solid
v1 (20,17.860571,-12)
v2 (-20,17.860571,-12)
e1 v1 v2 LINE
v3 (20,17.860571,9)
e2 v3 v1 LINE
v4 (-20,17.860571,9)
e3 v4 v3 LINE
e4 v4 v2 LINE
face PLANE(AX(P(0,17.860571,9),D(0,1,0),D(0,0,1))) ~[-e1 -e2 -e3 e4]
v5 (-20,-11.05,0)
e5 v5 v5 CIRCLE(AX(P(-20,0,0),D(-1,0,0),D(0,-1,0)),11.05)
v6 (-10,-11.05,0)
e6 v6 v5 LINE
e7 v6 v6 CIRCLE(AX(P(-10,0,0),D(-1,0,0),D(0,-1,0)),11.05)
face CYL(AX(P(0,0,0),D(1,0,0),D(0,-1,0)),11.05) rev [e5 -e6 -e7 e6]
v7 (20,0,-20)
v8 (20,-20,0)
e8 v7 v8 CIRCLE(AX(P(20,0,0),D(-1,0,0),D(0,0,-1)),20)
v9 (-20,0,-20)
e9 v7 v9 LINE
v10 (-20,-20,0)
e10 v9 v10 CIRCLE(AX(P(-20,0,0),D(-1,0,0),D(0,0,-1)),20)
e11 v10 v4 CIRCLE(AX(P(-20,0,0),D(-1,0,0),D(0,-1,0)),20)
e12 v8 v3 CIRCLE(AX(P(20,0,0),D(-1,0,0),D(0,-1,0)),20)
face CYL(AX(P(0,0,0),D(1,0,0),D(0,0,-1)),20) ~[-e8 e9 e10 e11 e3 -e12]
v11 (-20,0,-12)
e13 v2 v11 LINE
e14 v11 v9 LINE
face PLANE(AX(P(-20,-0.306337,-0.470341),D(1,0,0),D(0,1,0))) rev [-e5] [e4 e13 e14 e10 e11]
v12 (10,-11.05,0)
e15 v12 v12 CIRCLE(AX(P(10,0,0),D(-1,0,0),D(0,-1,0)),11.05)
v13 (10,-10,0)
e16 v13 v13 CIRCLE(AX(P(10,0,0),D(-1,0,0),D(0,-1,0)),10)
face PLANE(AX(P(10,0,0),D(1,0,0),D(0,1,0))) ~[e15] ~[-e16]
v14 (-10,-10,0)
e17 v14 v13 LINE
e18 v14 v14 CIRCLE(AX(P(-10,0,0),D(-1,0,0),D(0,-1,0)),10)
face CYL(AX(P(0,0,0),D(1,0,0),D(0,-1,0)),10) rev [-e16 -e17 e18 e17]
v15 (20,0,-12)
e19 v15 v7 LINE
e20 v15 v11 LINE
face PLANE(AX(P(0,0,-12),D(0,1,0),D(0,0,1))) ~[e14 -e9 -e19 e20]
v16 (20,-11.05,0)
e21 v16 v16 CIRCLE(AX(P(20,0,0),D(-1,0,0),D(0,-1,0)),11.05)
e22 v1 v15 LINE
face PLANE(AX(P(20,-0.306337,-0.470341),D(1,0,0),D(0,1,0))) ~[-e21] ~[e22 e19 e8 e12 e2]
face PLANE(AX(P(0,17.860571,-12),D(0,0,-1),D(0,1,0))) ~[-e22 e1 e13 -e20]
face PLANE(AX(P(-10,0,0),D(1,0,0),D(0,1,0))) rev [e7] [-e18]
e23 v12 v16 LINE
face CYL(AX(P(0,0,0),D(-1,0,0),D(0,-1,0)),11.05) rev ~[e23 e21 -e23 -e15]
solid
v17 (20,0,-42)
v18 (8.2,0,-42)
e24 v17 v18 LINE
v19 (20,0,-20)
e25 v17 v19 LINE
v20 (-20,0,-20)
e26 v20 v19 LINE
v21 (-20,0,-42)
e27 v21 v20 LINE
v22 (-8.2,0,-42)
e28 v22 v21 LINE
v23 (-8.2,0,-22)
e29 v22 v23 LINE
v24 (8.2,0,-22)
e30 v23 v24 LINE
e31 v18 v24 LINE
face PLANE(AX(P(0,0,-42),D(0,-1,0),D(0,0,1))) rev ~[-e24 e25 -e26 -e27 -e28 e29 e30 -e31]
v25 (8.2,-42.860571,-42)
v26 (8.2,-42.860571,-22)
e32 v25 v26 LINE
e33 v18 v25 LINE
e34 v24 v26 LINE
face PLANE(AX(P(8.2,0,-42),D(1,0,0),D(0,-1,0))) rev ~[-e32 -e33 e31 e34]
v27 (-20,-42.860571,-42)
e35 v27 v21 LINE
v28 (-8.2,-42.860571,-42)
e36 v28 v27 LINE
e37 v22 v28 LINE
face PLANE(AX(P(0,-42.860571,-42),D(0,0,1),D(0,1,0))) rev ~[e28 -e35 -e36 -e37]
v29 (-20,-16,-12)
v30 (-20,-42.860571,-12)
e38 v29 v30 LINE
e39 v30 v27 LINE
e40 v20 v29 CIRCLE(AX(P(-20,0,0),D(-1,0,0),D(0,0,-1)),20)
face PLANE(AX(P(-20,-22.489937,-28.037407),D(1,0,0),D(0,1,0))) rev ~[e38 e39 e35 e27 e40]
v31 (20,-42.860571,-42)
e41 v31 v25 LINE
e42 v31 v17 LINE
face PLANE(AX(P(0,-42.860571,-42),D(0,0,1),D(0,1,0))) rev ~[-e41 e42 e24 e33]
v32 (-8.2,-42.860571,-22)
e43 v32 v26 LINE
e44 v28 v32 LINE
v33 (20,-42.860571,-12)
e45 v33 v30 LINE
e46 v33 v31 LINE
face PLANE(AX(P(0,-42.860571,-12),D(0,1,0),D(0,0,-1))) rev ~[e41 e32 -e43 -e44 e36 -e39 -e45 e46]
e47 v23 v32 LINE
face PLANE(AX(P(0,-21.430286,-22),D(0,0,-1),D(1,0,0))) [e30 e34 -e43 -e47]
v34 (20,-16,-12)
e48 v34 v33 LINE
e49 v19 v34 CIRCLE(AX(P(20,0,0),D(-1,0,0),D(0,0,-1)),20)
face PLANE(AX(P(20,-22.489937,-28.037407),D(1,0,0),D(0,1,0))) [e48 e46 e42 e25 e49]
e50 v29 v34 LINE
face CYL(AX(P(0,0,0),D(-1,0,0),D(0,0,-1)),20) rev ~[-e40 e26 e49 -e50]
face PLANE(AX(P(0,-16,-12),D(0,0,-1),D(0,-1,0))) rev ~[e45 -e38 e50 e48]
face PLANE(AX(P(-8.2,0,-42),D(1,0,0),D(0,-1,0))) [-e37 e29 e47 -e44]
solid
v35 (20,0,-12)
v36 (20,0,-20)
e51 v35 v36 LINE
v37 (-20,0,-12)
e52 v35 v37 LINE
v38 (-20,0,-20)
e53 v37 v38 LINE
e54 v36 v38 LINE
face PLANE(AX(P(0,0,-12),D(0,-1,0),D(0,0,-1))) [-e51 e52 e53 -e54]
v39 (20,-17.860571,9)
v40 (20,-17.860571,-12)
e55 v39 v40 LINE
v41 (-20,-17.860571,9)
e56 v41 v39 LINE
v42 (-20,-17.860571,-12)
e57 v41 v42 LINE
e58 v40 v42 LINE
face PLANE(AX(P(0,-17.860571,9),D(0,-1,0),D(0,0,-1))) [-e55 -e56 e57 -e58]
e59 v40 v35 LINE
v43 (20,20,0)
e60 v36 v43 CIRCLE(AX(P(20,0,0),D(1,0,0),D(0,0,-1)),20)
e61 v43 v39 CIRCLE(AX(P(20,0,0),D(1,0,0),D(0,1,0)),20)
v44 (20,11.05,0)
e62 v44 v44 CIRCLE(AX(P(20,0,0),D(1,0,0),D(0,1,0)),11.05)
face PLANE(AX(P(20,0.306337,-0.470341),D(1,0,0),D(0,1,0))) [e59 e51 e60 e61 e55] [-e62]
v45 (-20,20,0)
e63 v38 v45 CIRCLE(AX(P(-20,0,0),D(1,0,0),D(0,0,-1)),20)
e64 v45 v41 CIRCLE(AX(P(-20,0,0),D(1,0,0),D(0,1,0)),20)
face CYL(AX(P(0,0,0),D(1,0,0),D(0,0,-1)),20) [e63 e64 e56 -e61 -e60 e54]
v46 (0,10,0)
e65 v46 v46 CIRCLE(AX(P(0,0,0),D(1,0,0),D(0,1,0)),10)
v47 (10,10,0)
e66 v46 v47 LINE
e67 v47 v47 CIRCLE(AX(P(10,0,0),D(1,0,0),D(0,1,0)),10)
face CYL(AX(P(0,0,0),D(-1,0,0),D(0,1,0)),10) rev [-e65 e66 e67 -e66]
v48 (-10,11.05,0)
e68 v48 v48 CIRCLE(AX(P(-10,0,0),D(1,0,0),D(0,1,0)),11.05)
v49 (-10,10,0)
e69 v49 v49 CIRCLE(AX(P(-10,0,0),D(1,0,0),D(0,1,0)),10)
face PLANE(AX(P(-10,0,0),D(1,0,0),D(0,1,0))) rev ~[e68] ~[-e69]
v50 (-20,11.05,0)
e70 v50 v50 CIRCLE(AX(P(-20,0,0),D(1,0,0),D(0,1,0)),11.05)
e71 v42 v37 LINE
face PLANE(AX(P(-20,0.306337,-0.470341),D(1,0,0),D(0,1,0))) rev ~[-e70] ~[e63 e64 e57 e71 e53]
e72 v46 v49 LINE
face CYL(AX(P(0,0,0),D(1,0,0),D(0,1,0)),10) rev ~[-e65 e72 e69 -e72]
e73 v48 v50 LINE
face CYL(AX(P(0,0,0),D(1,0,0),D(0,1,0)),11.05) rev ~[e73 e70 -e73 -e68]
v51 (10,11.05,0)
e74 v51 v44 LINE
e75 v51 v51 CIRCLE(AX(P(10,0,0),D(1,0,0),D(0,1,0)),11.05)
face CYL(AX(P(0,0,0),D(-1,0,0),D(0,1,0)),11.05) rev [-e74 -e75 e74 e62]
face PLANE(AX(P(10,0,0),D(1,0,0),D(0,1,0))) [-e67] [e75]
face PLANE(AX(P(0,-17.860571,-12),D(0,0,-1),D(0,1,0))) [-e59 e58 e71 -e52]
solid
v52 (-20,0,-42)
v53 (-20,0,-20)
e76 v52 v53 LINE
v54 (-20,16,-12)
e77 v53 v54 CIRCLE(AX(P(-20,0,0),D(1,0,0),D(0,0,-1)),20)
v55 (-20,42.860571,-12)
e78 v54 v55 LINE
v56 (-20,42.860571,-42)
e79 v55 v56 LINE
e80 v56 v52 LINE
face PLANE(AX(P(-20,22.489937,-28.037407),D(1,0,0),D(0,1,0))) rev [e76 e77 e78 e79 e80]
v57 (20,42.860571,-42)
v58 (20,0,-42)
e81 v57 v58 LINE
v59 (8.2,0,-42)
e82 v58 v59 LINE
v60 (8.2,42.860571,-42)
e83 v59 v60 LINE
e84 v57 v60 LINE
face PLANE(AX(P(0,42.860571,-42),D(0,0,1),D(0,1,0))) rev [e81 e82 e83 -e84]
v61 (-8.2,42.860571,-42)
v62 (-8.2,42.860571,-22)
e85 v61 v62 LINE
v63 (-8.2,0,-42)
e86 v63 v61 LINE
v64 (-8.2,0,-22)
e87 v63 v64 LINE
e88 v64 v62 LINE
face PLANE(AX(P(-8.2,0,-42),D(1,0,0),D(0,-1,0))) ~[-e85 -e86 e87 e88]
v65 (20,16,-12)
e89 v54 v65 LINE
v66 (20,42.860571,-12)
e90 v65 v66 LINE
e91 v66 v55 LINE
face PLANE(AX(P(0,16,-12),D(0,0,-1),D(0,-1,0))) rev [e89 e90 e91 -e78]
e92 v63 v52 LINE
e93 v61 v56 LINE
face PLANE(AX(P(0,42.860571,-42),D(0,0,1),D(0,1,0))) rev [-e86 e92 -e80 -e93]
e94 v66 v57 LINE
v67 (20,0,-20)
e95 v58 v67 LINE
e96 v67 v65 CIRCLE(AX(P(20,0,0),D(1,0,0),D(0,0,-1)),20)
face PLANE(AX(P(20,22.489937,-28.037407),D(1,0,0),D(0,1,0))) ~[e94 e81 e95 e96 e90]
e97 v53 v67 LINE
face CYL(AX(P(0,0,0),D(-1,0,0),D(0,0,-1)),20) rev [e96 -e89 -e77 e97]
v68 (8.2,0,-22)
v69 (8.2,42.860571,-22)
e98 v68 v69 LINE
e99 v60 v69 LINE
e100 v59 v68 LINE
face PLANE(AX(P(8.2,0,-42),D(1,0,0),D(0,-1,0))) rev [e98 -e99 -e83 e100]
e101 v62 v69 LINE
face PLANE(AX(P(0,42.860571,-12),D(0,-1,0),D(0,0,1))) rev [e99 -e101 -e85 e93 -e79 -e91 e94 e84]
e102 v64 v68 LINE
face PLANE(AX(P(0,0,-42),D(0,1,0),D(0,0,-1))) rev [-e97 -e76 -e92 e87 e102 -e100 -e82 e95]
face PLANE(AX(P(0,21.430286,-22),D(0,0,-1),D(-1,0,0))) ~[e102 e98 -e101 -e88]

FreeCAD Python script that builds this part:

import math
import FreeCAD as App
import Part
import Sketcher

doc = App.newDocument("Part")
params = doc.addObject("Spreadsheet::Sheet", "Params")
for row, (alias, value) in enumerate([
    ("sketch1_radius", "20 mm"),
    ("sketch1_diameter", "22.1 mm"),
    ("sketch1_height", "21 mm"),
    ("sketch1_height2", "8 mm"),
    ("pad1_length", "20 mm"),
    ("pad1_length2", "20 mm"),
    ("sketch2_diameter", "20 mm"),
    ("sketch2_diameter2", "22.1 mm"),
    ("pad2_length", "10 mm"),
    ("pad2_length2", "10 mm"),
    ("sketch3_radius", "20 mm"),
    ("sketch3_height", "22 mm"),
    ("sketch3_height2", "30 mm"),
    ("pad3_length", "20 mm"),
    ("pad3_length2", "20 mm"),
    ("sketch4_width", "16.4 mm"),
    ("pocket1_length", "20 mm"),
], start=1):
    params.set(f"A{row}", alias)
    params.set(f"B{row}", "=" + value)
    params.setAlias(f"B{row}", alias)

body = doc.addObject("PartDesign::Body", "Body")

# Sketch on YZ plane
sketch1 = body.newObject("Sketcher::SketchObject", "Sketch")
sketch1.AttachmentSupport = (doc.getObject("YZ_Plane"), [""])
sketch1.MapMode = "FlatFace"
sketch1.addGeometry(Part.ArcOfCircle(Part.Circle(App.Vector(0, 0, 0), App.Vector(0, 0, 1), 20), math.radians(-90), math.radians(0)), False)
sketch1.addGeometry(Part.ArcOfCircle(Part.Circle(App.Vector(0, 0, 0), App.Vector(0, 0, 1), 20), math.radians(0), math.radians(153)), False)
sketch1.addGeometry(Part.LineSegment(App.Vector(-18, 9, 0), App.Vector(-18, -12, 0)), False)
sketch1.addGeometry(Part.LineSegment(App.Vector(-18, -12, 0), App.Vector(0, -12, 0)), False)
sketch1.addGeometry(Part.LineSegment(App.Vector(0, -12, 0), App.Vector(0, -20, 0)), False)
sketch1.addGeometry(Part.Circle(App.Vector(0, 0, 0), App.Vector(0, 0, 1), 11), False)
sketch1.addConstraint(Sketcher.Constraint("Tangent", 0, 2, 1, 1))
sketch1.addConstraint(Sketcher.Constraint("Coincident", 1, 2, 2, 1))
sketch1.addConstraint(Sketcher.Constraint("Coincident", 2, 2, 3, 1))
sketch1.addConstraint(Sketcher.Constraint("Coincident", 3, 2, 4, 1))
sketch1.addConstraint(Sketcher.Constraint("Coincident", 4, 2, 0, 1))
sketch1.addConstraint(Sketcher.Constraint("Vertical", 2))
sketch1.addConstraint(Sketcher.Constraint("Horizontal", 3))
sketch1.addConstraint(Sketcher.Constraint("Vertical", 4))
sketch1.addConstraint(Sketcher.Constraint("Coincident", 0, 3, -1, 1))
sketch1.addConstraint(Sketcher.Constraint("Coincident", 5, 3, -1, 1))
sketch1.addConstraint(Sketcher.Constraint("Equal", 0, 1))
sketch1.addConstraint(Sketcher.Constraint("PointOnObject", 0, 2, -1))
sketch1.addConstraint(Sketcher.Constraint("PointOnObject", 3, 2, -2))
sketch1.addConstraint(Sketcher.Constraint("Radius", 0, 20.0))
sketch1.addConstraint(Sketcher.Constraint("Diameter", 5, 22.1))
sketch1.addConstraint(Sketcher.Constraint("DistanceY", 2, 2, 2, 1, 21.0))
sketch1.addConstraint(Sketcher.Constraint("DistanceY", 4, 2, 4, 1, 8.0))
sketch1.setExpression("Constraints[13]", "Params.sketch1_radius")
sketch1.setExpression("Constraints[14]", "Params.sketch1_diameter")
sketch1.setExpression("Constraints[15]", "Params.sketch1_height")
sketch1.setExpression("Constraints[16]", "Params.sketch1_height2")
pad1 = body.newObject("PartDesign::Pad", "Pad")
pad1.Profile = sketch1
pad1.Type = "TwoLengths"
pad1.setExpression("Length", "Params.pad1_length")
pad1.setExpression("Length2", "Params.pad1_length2")

# Sketch on YZ plane
sketch2 = body.newObject("Sketcher::SketchObject", "Sketch001")
sketch2.AttachmentSupport = (doc.getObject("YZ_Plane"), [""])
sketch2.MapMode = "FlatFace"
sketch2.addGeometry(Part.Circle(App.Vector(0, 0, 0), App.Vector(0, 0, 1), 11), False)
sketch2.addGeometry(Part.Circle(App.Vector(0, 0, 0), App.Vector(0, 0, 1), 10), False)
sketch2.addConstraint(Sketcher.Constraint("Coincident", 0, 3, -1, 1))
sketch2.addConstraint(Sketcher.Constraint("Coincident", 1, 3, -1, 1))
sketch2.addConstraint(Sketcher.Constraint("Diameter", 1, 20.0))
sketch2.addConstraint(Sketcher.Constraint("Diameter", 0, 22.1))
sketch2.setExpression("Constraints[2]", "Params.sketch2_diameter")
sketch2.setExpression("Constraints[3]", "Params.sketch2_diameter2")
pad2 = body.newObject("PartDesign::Pad", "Pad001")
pad2.Profile = sketch2
pad2.Type = "TwoLengths"
pad2.setExpression("Length", "Params.pad2_length")
pad2.setExpression("Length2", "Params.pad2_length2")
body2 = doc.addObject("PartDesign::Body", "Body001")
doc.recompute()

mirroring = doc.addObject("Part::Mirroring", "Mirroring")
mirroring.Source = body
mirroring.Base = App.Vector(0, 0, 0)
mirroring.Normal = App.Vector(0, -1, 0)
body2.BaseFeature = mirroring
doc.recompute()
body3 = doc.addObject("PartDesign::Body", "Body002")

# Sketch on YZ plane
sketch3 = body3.newObject("Sketcher::SketchObject", "Sketch002")
sketch3.AttachmentSupport = (doc.getObject("YZ_Plane002"), [""])
sketch3.MapMode = "FlatFace"
sketch3.addGeometry(Part.LineSegment(App.Vector(0, -42, 0), App.Vector(0, -20, 0)), False)
sketch3.addGeometry(Part.ArcOfCircle(Part.Circle(App.Vector(0, 0, 0), App.Vector(0, 0, 1), 20), math.radians(-143), math.radians(-90)), False)
sketch3.addGeometry(Part.LineSegment(App.Vector(-16, -12, 0), App.Vector(-43, -12, 0)), False)
sketch3.addGeometry(Part.LineSegment(App.Vector(-43, -12, 0), App.Vector(-43, -42, 0)), False)
sketch3.addGeometry(Part.LineSegment(App.Vector(-43, -42, 0), App.Vector(0, -42, 0)), False)
sketch3.addConstraint(Sketcher.Constraint("Coincident", 0, 2, 1, 2))
sketch3.addConstraint(Sketcher.Constraint("Coincident", 1, 1, 2, 1))
sketch3.addConstraint(Sketcher.Constraint("Coincident", 2, 2, 3, 1))
sketch3.addConstraint(Sketcher.Constraint("Coincident", 3, 2, 4, 1))
sketch3.addConstraint(Sketcher.Constraint("Coincident", 4, 2, 0, 1))
sketch3.addConstraint(Sketcher.Constraint("Vertical", 0))
sketch3.addConstraint(Sketcher.Constraint("Horizontal", 2))
sketch3.addConstraint(Sketcher.Constraint("Vertical", 3))
sketch3.addConstraint(Sketcher.Constraint("Horizontal", 4))
sketch3.addConstraint(Sketcher.Constraint("Coincident", 1, 3, -1, 1))
sketch3.addConstraint(Sketcher.Constraint("PointOnObject", 0, 2, -2))
sketch3.addConstraint(Sketcher.Constraint("Radius", 1, 20.0))
sketch3.addConstraint(Sketcher.Constraint("DistanceY", 0, 1, 0, 2, 22.0))
sketch3.addConstraint(Sketcher.Constraint("DistanceY", 3, 2, 3, 1, 30.0))
sketch3.addConstraint(Sketcher.Constraint("DistanceX", 2, 2, 2, 1, 26.860571))
sketch3.setExpression("Constraints[11]", "Params.sketch3_radius")
sketch3.setExpression("Constraints[12]", "Params.sketch3_height")
sketch3.setExpression("Constraints[13]", "Params.sketch3_height2")
pad3 = body3.newObject("PartDesign::Pad", "Pad002")
pad3.Profile = sketch3
pad3.Type = "TwoLengths"
pad3.setExpression("Length", "Params.pad3_length")
pad3.setExpression("Length2", "Params.pad3_length2")
pad3.Reversed = True

# Sketch on XY plane
sketch4 = body3.newObject("Sketcher::SketchObject", "Sketch003")
sketch4.AttachmentSupport = (doc.getObject("XY_Plane002"), [""])
sketch4.MapMode = "FlatFace"
sketch4.AttachmentOffset = App.Placement(App.Vector(0, 0, -42), App.Rotation())
sketch4.addGeometry(Part.LineSegment(App.Vector(-8, -43, 0), App.Vector(-8, 0, 0)), False)
sketch4.addGeometry(Part.LineSegment(App.Vector(-8, 0, 0), App.Vector(8, 0, 0)), False)
sketch4.addGeometry(Part.LineSegment(App.Vector(8, 0, 0), App.Vector(8, -43, 0)), False)
sketch4.addGeometry(Part.LineSegment(App.Vector(8, -43, 0), App.Vector(-8, -43, 0)), False)
sketch4.addConstraint(Sketcher.Constraint("Coincident", 0, 2, 1, 1))
sketch4.addConstraint(Sketcher.Constraint("Coincident", 1, 2, 2, 1))
sketch4.addConstraint(Sketcher.Constraint("Coincident", 2, 2, 3, 1))
sketch4.addConstraint(Sketcher.Constraint("Coincident", 3, 2, 0, 1))
sketch4.addConstraint(Sketcher.Constraint("Vertical", 0))
sketch4.addConstraint(Sketcher.Constraint("Horizontal", 1))
sketch4.addConstraint(Sketcher.Constraint("Vertical", 2))
sketch4.addConstraint(Sketcher.Constraint("Horizontal", 3))
sketch4.addConstraint(Sketcher.Constraint("Symmetric", 0, 2, 1, 2, -1, 1))
sketch4.addConstraint(Sketcher.Constraint("DistanceX", 1, 1, 1, 2, 16.4))
sketch4.addConstraint(Sketcher.Constraint("DistanceY", 0, 1, 0, 2, 42.860571))
sketch4.setExpression("Constraints[9]", "Params.sketch4_width")
pocket1 = body3.newObject("PartDesign::Pocket", "Pocket")
pocket1.Profile = sketch4
pocket1.setExpression("Length", "Params.pocket1_length")
pocket1.Reversed = True
body4 = doc.addObject("PartDesign::Body", "Body003")
doc.recompute()

mirroring2 = doc.addObject("Part::Mirroring", "Mirroring001")
mirroring2.Source = body3
mirroring2.Base = App.Vector(0, 0, 0)
mirroring2.Normal = App.Vector(0, -1, 0)
body4.BaseFeature = mirroring2
doc.recompute()
mirroring.Visibility = False
mirroring2.Visibility = False

doc.recompute()
